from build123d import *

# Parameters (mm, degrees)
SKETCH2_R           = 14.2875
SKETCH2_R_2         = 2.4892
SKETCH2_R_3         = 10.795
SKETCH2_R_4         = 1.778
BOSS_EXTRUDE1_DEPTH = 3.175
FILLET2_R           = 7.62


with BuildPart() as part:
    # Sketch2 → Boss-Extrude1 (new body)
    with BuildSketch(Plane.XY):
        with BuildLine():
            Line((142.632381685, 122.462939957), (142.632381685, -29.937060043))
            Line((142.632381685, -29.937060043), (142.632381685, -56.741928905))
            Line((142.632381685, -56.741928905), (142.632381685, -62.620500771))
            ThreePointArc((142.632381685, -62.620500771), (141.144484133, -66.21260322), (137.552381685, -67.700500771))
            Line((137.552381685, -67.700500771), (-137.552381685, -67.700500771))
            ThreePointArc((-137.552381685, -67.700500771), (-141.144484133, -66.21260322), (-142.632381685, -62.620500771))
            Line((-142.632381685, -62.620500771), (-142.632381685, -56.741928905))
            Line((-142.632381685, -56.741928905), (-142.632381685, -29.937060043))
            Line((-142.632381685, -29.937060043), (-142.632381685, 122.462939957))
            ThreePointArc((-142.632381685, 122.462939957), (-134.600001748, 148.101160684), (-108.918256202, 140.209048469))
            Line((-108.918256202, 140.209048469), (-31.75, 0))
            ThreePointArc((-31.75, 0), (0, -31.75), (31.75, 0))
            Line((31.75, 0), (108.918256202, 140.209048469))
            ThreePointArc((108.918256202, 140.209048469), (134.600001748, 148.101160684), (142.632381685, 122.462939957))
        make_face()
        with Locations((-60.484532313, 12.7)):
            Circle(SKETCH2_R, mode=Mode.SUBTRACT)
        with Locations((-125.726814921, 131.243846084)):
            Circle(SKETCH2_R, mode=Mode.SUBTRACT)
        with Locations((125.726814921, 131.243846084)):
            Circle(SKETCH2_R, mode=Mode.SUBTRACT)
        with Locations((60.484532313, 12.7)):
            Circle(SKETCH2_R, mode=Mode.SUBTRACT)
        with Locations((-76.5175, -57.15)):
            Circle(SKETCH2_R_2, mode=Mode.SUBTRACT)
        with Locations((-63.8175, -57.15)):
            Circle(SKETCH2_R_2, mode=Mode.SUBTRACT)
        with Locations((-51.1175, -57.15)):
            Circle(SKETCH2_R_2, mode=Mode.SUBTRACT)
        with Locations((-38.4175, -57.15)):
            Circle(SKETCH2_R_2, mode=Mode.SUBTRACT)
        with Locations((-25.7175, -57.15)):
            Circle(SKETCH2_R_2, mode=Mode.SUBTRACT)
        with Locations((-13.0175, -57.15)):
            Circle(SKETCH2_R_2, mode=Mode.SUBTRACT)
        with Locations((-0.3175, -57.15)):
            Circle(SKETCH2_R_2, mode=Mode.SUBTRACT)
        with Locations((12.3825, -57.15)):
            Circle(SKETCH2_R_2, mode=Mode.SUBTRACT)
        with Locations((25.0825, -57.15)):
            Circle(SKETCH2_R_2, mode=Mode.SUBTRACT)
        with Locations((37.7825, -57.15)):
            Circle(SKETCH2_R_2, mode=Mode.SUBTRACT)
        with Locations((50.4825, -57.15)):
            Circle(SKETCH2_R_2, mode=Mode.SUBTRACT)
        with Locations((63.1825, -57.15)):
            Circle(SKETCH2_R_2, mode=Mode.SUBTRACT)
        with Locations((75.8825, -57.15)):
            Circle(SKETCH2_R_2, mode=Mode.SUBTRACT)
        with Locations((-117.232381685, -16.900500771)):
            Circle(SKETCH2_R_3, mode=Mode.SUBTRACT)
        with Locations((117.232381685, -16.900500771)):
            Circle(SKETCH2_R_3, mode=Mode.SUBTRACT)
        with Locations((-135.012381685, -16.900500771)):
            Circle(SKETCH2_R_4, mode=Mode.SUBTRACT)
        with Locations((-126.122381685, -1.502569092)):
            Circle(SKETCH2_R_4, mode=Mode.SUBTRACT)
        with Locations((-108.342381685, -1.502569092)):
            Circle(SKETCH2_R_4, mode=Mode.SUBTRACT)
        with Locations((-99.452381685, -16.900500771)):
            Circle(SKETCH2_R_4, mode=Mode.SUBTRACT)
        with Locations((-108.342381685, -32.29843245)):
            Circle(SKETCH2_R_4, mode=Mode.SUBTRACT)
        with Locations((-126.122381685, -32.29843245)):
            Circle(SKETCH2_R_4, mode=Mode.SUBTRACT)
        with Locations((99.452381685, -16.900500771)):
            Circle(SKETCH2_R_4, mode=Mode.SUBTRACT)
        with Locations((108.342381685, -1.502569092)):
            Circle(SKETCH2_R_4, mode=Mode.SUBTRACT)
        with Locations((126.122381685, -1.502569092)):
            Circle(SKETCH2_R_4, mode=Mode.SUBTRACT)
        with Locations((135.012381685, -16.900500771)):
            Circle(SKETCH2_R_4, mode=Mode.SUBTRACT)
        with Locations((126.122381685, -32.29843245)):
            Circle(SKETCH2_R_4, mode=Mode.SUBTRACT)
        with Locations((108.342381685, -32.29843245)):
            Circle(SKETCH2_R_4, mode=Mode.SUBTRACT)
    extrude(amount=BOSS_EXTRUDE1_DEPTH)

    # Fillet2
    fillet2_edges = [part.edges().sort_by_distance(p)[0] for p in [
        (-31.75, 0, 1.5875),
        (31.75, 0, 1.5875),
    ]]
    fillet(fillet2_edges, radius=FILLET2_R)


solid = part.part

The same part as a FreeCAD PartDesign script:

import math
import FreeCAD as App
import Part
import Sketcher

V = App.Vector
Q = App.Units.Quantity


def edges_at(feature, points):
    """Names of the edges that pass closest to the given points."""
    edges = feature.Shape.Edges
    near = lambda p: min(range(len(edges)), key=lambda i: edges[i].distToShape(Part.Vertex(*p))[0])
    return sorted({f"Edge{near(p) + 1}" for p in points})

doc = App.newDocument("Part")
body = doc.addObject("PartDesign::Body", "Body")

# Sketch on XY plane
sketch1 = doc.addObject("Sketcher::SketchObject", "Sketch")
body.addObject(sketch1)
sketch1.AttachmentSupport = (doc.XY_Plane, [""])
sketch1.MapMode = "FlatFace"
sketch1.addGeometry(Part.LineSegment(V(142.632382, -62.620501, 0), V(142.632382, 122.46294, 0)), False)
sketch1.addGeometry(Part.ArcOfCircle(Part.Circle(V(125.726815, 131.243846, 0), V(0, 0, 1), 19.05), math.radians(-27.447778), math.radians(151.925821)), False)
sketch1.addGeometry(Part.LineSegment(V(108.918256, 140.209048, 0), V(31.75, 0, 0)), False)
sketch1.addGeometry(Part.ArcOfCircle(Part.Circle(V(0, 0, 0), V(0, 0, 1), 31.75), math.radians(180), math.radians(360)), False)
sketch1.addGeometry(Part.LineSegment(V(-31.75, 0, 0), V(-108.918256, 140.209048, 0)), False)
sketch1.addGeometry(Part.ArcOfCircle(Part.Circle(V(-125.726815, 131.243846, 0), V(0, 0, 1), 19.05), math.radians(28.074179), math.radians(207.447778)), False)
sketch1.addGeometry(Part.LineSegment(V(-142.632382, 122.46294, 0), V(-142.632382, -62.620501, 0)), False)
sketch1.addGeometry(Part.ArcOfCircle(Part.Circle(V(-137.552382, -62.620501, 0), V(0, 0, 1), 5.08), math.radians(180), math.radians(270)), False)
sketch1.addGeometry(Part.LineSegment(V(-137.552382, -67.700501, 0), V(137.552382, -67.700501, 0)), False)
sketch1.addGeometry(Part.ArcOfCircle(Part.Circle(V(137.552382, -62.620501, 0), V(0, 0, 1), 5.08), math.radians(-90), math.radians(0)), False)
sketch1.addGeometry(Part.Circle(V(75.8825, -57.15, 0), V(0, 0, 1), 2.4892), False)
sketch1.addGeometry(Part.Circle(V(126.122382, -32.298432, 0), V(0, 0, 1), 1.778), False)
sketch1.addGeometry(Part.Circle(V(108.342382, -32.298432, 0), V(0, 0, 1), 1.778), False)
sketch1.addGeometry(Part.Circle(V(135.012382, -16.900501, 0), V(0, 0, 1), 1.778), False)
sketch1.addGeometry(Part.Circle(V(117.232382, -16.900501, 0), V(0, 0, 1), 10.795), False)
sketch1.addGeometry(Part.Circle(V(99.452382, -16.900501, 0), V(0, 0, 1), 1.778), False)
sketch1.addGeometry(Part.Circle(V(63.1825, -57.15, 0), V(0, 0, 1), 2.4892), False)
sketch1.addGeometry(Part.Circle(V(50.4825, -57.15, 0), V(0, 0, 1), 2.4892), False)
sketch1.addGeometry(Part.Circle(V(37.7825, -57.15, 0), V(0, 0, 1), 2.4892), False)
sketch1.addGeometry(Part.Circle(V(25.0825, -57.15, 0), V(0, 0, 1), 2.4892), False)
sketch1.addGeometry(Part.Circle(V(12.3825, -57.15, 0), V(0, 0, 1), 2.4892), False)
sketch1.addGeometry(Part.Circle(V(126.122382, -1.502569, 0), V(0, 0, 1), 1.778), False)
sketch1.addGeometry(Part.Circle(V(108.342382, -1.502569, 0), V(0, 0, 1), 1.778), False)
sketch1.addGeometry(Part.Circle(V(60.484532, 12.7, 0), V(0, 0, 1), 14.2875), False)
sketch1.addGeometry(Part.Circle(V(-0.3175, -57.15, 0), V(0, 0, 1), 2.4892), False)
sketch1.addGeometry(Part.Circle(V(-13.0175, -57.15, 0), V(0, 0, 1), 2.4892), False)
sketch1.addGeometry(Part.Circle(V(-25.7175, -57.15, 0), V(0, 0, 1), 2.4892), False)
sketch1.addGeometry(Part.Circle(V(-38.4175, -57.15, 0), V(0, 0, 1), 2.4892), False)
sketch1.addGeometry(Part.Circle(V(-51.1175, -57.15, 0), V(0, 0, 1), 2.4892), False)
sketch1.addGeometry(Part.Circle(V(-63.8175, -57.15, 0), V(0, 0, 1), 2.4892), False)
sketch1.addGeometry(Part.Circle(V(-76.5175, -57.15, 0), V(0, 0, 1), 2.4892), False)
sketch1.addGeometry(Part.Circle(V(-99.452382, -16.900501, 0), V(0, 0, 1), 1.778), False)
sketch1.addGeometry(Part.Circle(V(-108.342382, -32.298432, 0), V(0, 0, 1), 1.778), False)
sketch1.addGeometry(Part.Circle(V(-126.122382, -32.298432, 0), V(0, 0, 1), 1.778), False)
sketch1.addGeometry(Part.Circle(V(-117.232382, -16.900501, 0), V(0, 0, 1), 10.795), False)
sketch1.addGeometry(Part.Circle(V(-135.012382, -16.900501, 0), V(0, 0, 1), 1.778), False)
sketch1.addGeometry(Part.Circle(V(-60.484532, 12.7, 0), V(0, 0, 1), 14.2875), False)
sketch1.addGeometry(Part.Circle(V(-108.342382, -1.502569, 0), V(0, 0, 1), 1.778), False)
sketch1.addGeometry(Part.Circle(V(-126.122382, -1.502569, 0), V(0, 0, 1), 1.778), False)
sketch1.addGeometry(Part.Circle(V(125.726815, 131.243846, 0), V(0, 0, 1), 14.2875), False)
sketch1.addGeometry(Part.Circle(V(-125.726815, 131.243846, 0), V(0, 0, 1), 14.2875), False)
sketch1.addConstraint(Sketcher.Constraint("Coincident", 0, 2, 1, 1))
sketch1.addConstraint(Sketcher.Constraint("Coincident", 1, 2, 2, 1))
sketch1.addConstraint(Sketcher.Constraint("Coincident", 2, 2, 3, 2))
sketch1.addConstraint(Sketcher.Constraint("Coincident", 3, 1, 4, 1))
sketch1.addConstraint(Sketcher.Constraint("Coincident", 4, 2, 5, 1))
sketch1.addConstraint(Sketcher.Constraint("Coincident", 5, 2, 6, 1))
sketch1.addConstraint(Sketcher.Constraint("Tangent", 6, 2, 7, 1))
sketch1.addConstraint(Sketcher.Constraint("Tangent", 7, 2, 8, 1))
sketch1.addConstraint(Sketcher.Constraint("Tangent", 8, 2, 9, 1))
sketch1.addConstraint(Sketcher.Constraint("Tangent", 9, 2, 0, 1))
sketch1.addConstraint(Sketcher.Constraint("Vertical", 0))
sketch1.addConstraint(Sketcher.Constraint("Vertical", 6))
sketch1.addConstraint(Sketcher.Constraint("Horizontal", 8))
sketch1.addConstraint(Sketcher.Constraint("Coincident", 3, 3, -1, 1))
sketch1.addConstraint(Sketcher.Constraint("Coincident", 39, 3, 1, 3))
sketch1.addConstraint(Sketcher.Constraint("Coincident", 40, 3, 5, 3))
sketch1.addConstraint(Sketcher.Constraint("Equal", 1, 5))
sketch1.addConstraint(Sketcher.Constraint("Equal", 7, 9))
sketch1.addConstraint(Sketcher.Constraint("Equal", 11, 12))
sketch1.addConstraint(Sketcher.Constraint("Equal", 12, 13))
sketch1.addConstraint(Sketcher.Constraint("Equal", 13, 15))
sketch1.addConstraint(Sketcher.Constraint("Equal", 10, 16))
sketch1.addConstraint(Sketcher.Constraint("Equal", 16, 17))
sketch1.addConstraint(Sketcher.Constraint("Equal", 17, 18))
sketch1.addConstraint(Sketcher.Constraint("Equal", 18, 19))
sketch1.addConstraint(Sketcher.Constraint("Equal", 19, 20))
sketch1.addConstraint(Sketcher.Constraint("Equal", 15, 21))
sketch1.addConstraint(Sketcher.Constraint("Equal", 21, 22))
sketch1.addConstraint(Sketcher.Constraint("Equal", 20, 24))
sketch1.addConstraint(Sketcher.Constraint("Equal", 24, 25))
sketch1.addConstraint(Sketcher.Constraint("Equal", 25, 26))
sketch1.addConstraint(Sketcher.Constraint("Equal", 26, 27))
sketch1.addConstraint(Sketcher.Constraint("Equal", 27, 28))
sketch1.addConstraint(Sketcher.Constraint("Equal", 28, 29))
sketch1.addConstraint(Sketcher.Constraint("Equal", 29, 30))
sketch1.addConstraint(Sketcher.Constraint("Equal", 22, 31))
sketch1.addConstraint(Sketcher.Constraint("Equal", 31, 32))
sketch1.addConstraint(Sketcher.Constraint("Equal", 32, 33))
sketch1.addConstraint(Sketcher.Constraint("Equal", 14, 34))
sketch1.addConstraint(Sketcher.Constraint("Equal", 33, 35))
sketch1.addConstraint(Sketcher.Constraint("Equal", 23, 36))
sketch1.addConstraint(Sketcher.Constraint("Equal", 35, 37))
sketch1.addConstraint(Sketcher.Constraint("Equal", 37, 38))
sketch1.addConstraint(Sketcher.Constraint("Equal", 36, 39))
sketch1.addConstraint(Sketcher.Constraint("Equal", 39, 40))
sketch1.addConstraint(Sketcher.Constraint("Symmetric", 1, 3, 5, 3, -2))
sketch1.addConstraint(Sketcher.Constraint("Symmetric", 15, 3, 31, 3, -2))
sketch1.addConstraint(Sketcher.Constraint("Symmetric", 12, 3, 32, 3, -2))
sketch1.addConstraint(Sketcher.Constraint("Symmetric", 11, 3, 33, 3, -2))
sketch1.addConstraint(Sketcher.Constraint("Symmetric", 14, 3, 34, 3, -2))
sketch1.addConstraint(Sketcher.Constraint("Symmetric", 13, 3, 35, 3, -2))
sketch1.addConstraint(Sketcher.Constraint("Symmetric", 23, 3, 36, 3, -2))
sketch1.addConstraint(Sketcher.Constraint("Symmetric", 22, 3, 37, 3, -2))
sketch1.addConstraint(Sketcher.Constraint("Symmetric", 21, 3, 38, 3, -2))
sketch1.addConstraint(Sketcher.Constraint("PointOnObject", 2, 2, -1))
sketch1.addConstraint(Sketcher.Constraint("PointOnObject", 3, 1, -1))
sketch1.addConstraint(Sketcher.Constraint("Horizontal", 11, 3, 12, 3))
sketch1.addConstraint(Sketcher.Constraint("Horizontal", 13, 3, 14, 3))
sketch1.addConstraint(Sketcher.Constraint("Horizontal", 14, 3, 15, 3))
sketch1.addConstraint(Sketcher.Constraint("Horizontal", 10, 3, 16, 3))
sketch1.addConstraint(Sketcher.Constraint("Horizontal", 16, 3, 17, 3))
sketch1.addConstraint(Sketcher.Constraint("Horizontal", 17, 3, 18, 3))
sketch1.addConstraint(Sketcher.Constraint("Horizontal", 18, 3, 19, 3))
sketch1.addConstraint(Sketcher.Constraint("Horizontal", 19, 3, 20, 3))
sketch1.addConstraint(Sketcher.Constraint("Horizontal", 21, 3, 22, 3))
sketch1.addConstraint(Sketcher.Constraint("Horizontal", 20, 3, 24, 3))
sketch1.addConstraint(Sketcher.Constraint("Horizontal", 24, 3, 25, 3))
sketch1.addConstraint(Sketcher.Constraint("Horizontal", 25, 3, 26, 3))
sketch1.addConstraint(Sketcher.Constraint("Horizontal", 26, 3, 27, 3))
sketch1.addConstraint(Sketcher.Constraint("Horizontal", 27, 3, 28, 3))
sketch1.addConstraint(Sketcher.Constraint("Horizontal", 28, 3, 29, 3))
sketch1.addConstraint(Sketcher.Constraint("Horizontal", 29, 3, 30, 3))
sketch1.addConstraint(Sketcher.Constraint("Horizontal", 1, 2, 4, 2))
sketch1.addConstraint(Sketcher.Constraint("Horizontal", 0, 2, 5, 2))
sketch1.addConstraint(Sketcher.Constraint("Vertical", 11, 3, 21, 3))
sketch1.addConstraint(Sketcher.Constraint("Vertical", 12, 3, 22, 3))
sketch1.addConstraint(Sketcher.Constraint("Radius", 7, Q("0.2 in")))
sketch1.addConstraint(Sketcher.Constraint("Diameter", 11, Q("0.14 in")))
sketch1.addConstraint(Sketcher.Constraint("Diameter", 14, Q("0.85 in")))
sketch1.addConstraint(Sketcher.Constraint("Radius", 1, Q("0.75 in")))
sketch1.addConstraint(Sketcher.Constraint("Radius", 3, Q("1.25 in")))
sketch1.addConstraint(Sketcher.Constraint("Diameter", 10, Q("0.196 in")))
sketch1.addConstraint(Sketcher.Constraint("Diameter", 23, Q("1.125 in")))
sketch1.addConstraint(Sketcher.Constraint("DistanceX", 17, 3, 10, 3, Q("1 in")))
sketch1.addConstraint(Sketcher.Constraint("DistanceX", 18, 3, 16, 3, Q("1 in")))
sketch1.addConstraint(Sketcher.Constraint("DistanceX", 19, 3, 17, 3, Q("1 in")))
sketch1.addConstraint(Sketcher.Constraint("DistanceX", 20, 3, 18, 3, Q("1 in")))
sketch1.addConstraint(Sketcher.Constraint("DistanceX", 24, 3, 19, 3, Q("1 in")))
sketch1.addConstraint(Sketcher.Constraint("DistanceX", 25, 3, 20, 3, Q("1 in")))
sketch1.addConstraint(Sketcher.Constraint("DistanceX", 26, 3, 24, 3, Q("1 in")))
sketch1.addConstraint(Sketcher.Constraint("DistanceX", 27, 3, 25, 3, Q("1 in")))
sketch1.addConstraint(Sketcher.Constraint("DistanceX", 28, 3, 26, 3, Q("1 in")))
sketch1.addConstraint(Sketcher.Constraint("DistanceX", 29, 3, 27, 3, Q("1 in")))
sketch1.addConstraint(Sketcher.Constraint("DistanceX", 30, 3, 28, 3, Q("1 in")))
sketch1.addConstraint(Sketcher.Constraint("DistanceX", 6, 2, 34, 3, Q("1 in")))
sketch1.addConstraint(Sketcher.Constraint("DistanceY", 7, 2, 35, 3, Q("2 in")))
sketch1.addConstraint(Sketcher.Constraint("DistanceY", -1, 1, 23, 3, Q("0.5 in")))
sketch1.addConstraint(Sketcher.Constraint("DistanceX", 12, 3, 11, 3, Q("0.7 in")))
sketch1.addConstraint(Sketcher.Constraint("DistanceX", 13, 3, 9, 3, Q("0.1 in")))
sketch1.addConstraint(Sketcher.Constraint("DistanceX", 15, 3, 14, 3, Q("0.7 in")))
sketch1.addConstraint(Sketcher.Constraint("DistanceX", 16, 3, 10, 3, Q("0.5 in")))
sketch1.addConstraint(Sketcher.Constraint("DistanceY", 10, 3, -1, 1, Q("2.25 in")))
sketch1.addConstraint(Sketcher.Constraint("DistanceX", 11, 3, 9, 3, Q("0.45 in")))
sketch1.addConstraint(Sketcher.Constraint("DistanceX", -1, 1, 10, 3, Q("2.9875 in")))
sketch1.addConstraint(Sketcher.Constraint("DistanceY", 0, 1, 0, 2, Q("185.083441 mm")))
sketch1.addConstraint(Sketcher.Constraint("DistanceY", 7, 3, -1, 1, Q("62.620501 mm")))
sketch1.addConstraint(Sketcher.Constraint("DistanceX", 8, 1, 8, 2, Q("275.104763 mm")))
sketch1.addConstraint(Sketcher.Constraint("DistanceY", 21, 3, -1, 1, Q("1.502569 mm")))
sketch1.addConstraint(Sketcher.Constraint("DistanceY", -1, 1, 1, 2, Q("140.209048 mm")))
sketch1.addConstraint(Sketcher.Constraint("DistanceX", 5, 3, 1, 3, Q("251.45363 mm")))
sketch1.addConstraint(Sketcher.Constraint("DistanceY", 9, 3, 11, 3, Q("30.322068 mm")))
sketch1.addConstraint(Sketcher.Constraint("DistanceX", 23, 3, 15, 3, Q("38.967849 mm")))
pad1 = doc.addObject("PartDesign::Pad", "Pad")
body.addObject(pad1)
pad1.Profile = sketch1
pad1.Length = Q("0.125 in")
doc.recompute()

fillet = doc.addObject("PartDesign::Fillet", "Fillet")
body.addObject(fillet)
fillet.Base = (pad1, edges_at(pad1, [(-31.75, 0, 1.587), (31.75, 0, 1.587)]))
fillet.Radius = Q("0.3 in")

doc.recompute()
